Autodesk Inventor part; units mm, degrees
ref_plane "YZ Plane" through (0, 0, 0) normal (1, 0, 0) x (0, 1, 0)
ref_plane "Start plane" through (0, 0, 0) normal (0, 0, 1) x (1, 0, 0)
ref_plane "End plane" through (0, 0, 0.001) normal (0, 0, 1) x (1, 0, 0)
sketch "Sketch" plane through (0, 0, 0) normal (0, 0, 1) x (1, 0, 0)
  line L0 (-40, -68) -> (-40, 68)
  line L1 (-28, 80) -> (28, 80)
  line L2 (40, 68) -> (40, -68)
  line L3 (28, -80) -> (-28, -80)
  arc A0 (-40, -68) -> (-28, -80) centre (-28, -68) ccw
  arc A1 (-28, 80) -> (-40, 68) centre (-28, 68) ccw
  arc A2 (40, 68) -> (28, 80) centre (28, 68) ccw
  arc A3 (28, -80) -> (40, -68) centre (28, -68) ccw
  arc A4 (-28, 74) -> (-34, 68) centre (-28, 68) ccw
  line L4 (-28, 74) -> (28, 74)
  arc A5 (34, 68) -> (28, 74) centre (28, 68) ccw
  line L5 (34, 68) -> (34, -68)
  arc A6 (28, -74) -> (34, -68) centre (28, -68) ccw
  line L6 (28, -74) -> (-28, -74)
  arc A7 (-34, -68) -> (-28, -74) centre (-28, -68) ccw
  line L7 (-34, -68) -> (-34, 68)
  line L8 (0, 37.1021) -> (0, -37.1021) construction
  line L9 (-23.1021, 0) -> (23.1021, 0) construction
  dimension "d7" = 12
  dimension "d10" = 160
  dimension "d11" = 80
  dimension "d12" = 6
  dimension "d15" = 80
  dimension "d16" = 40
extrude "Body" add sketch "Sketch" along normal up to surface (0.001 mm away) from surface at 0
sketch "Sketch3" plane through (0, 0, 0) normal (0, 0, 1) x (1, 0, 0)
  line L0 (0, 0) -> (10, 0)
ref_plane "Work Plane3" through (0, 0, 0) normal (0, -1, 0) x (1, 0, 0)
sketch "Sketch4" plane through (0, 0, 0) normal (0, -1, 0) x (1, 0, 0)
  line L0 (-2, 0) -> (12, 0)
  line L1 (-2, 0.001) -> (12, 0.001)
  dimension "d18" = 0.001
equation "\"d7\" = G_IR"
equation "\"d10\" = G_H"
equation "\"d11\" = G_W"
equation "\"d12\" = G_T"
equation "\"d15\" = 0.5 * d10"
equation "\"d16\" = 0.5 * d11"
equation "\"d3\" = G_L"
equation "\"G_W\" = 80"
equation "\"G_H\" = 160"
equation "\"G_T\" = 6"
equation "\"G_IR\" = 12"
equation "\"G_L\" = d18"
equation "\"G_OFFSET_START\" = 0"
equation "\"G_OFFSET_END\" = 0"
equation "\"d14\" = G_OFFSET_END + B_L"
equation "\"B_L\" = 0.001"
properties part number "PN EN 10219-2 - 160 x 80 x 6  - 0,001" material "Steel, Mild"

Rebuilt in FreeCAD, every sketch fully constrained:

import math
import FreeCAD as App
import Part
import Sketcher
Q = App.Units.Quantity

doc = App.newDocument("Part")
body = doc.addObject("PartDesign::Body", "Body")

# Sketch on XY plane
sketch1 = body.newObject("Sketcher::SketchObject", "Sketch")
sketch1.AttachmentSupport = (doc.getObject("XY_Plane"), [""])
sketch1.MapMode = "FlatFace"
sketch1.addGeometry(Part.LineSegment(App.Vector(-40, 68, 0), App.Vector(-40, -68, 0)), False)
sketch1.addGeometry(Part.ArcOfCircle(Part.Circle(App.Vector(-28, -68, 0), App.Vector(0, 0, 1), 12), math.radians(180), math.radians(270)), False)
sketch1.addGeometry(Part.LineSegment(App.Vector(-28, -80, 0), App.Vector(28, -80, 0)), False)
sketch1.addGeometry(Part.ArcOfCircle(Part.Circle(App.Vector(28, -68, 0), App.Vector(0, 0, 1), 12), math.radians(-90), math.radians(0)), False)
sketch1.addGeometry(Part.LineSegment(App.Vector(40, -68, 0), App.Vector(40, 68, 0)), False)
sketch1.addGeometry(Part.ArcOfCircle(Part.Circle(App.Vector(28, 68, 0), App.Vector(0, 0, 1), 12), math.radians(0), math.radians(90)), False)
sketch1.addGeometry(Part.LineSegment(App.Vector(28, 80, 0), App.Vector(-28, 80, 0)), False)
sketch1.addGeometry(Part.ArcOfCircle(Part.Circle(App.Vector(-28, 68, 0), App.Vector(0, 0, 1), 12), math.radians(90), math.radians(180)), False)
sketch1.addGeometry(Part.ArcOfCircle(Part.Circle(App.Vector(-28, 68, 0), App.Vector(0, 0, 1), 6), math.radians(90), math.radians(180)), False)
sketch1.addGeometry(Part.LineSegment(App.Vector(-28, 74, 0), App.Vector(28, 74, 0)), False)
sketch1.addGeometry(Part.ArcOfCircle(Part.Circle(App.Vector(28, 68, 0), App.Vector(0, 0, 1), 6), math.radians(0), math.radians(90)), False)
sketch1.addGeometry(Part.LineSegment(App.Vector(34, 68, 0), App.Vector(34, -68, 0)), False)
sketch1.addGeometry(Part.ArcOfCircle(Part.Circle(App.Vector(28, -68, 0), App.Vector(0, 0, 1), 6), math.radians(-90), math.radians(0)), False)
sketch1.addGeometry(Part.LineSegment(App.Vector(28, -74, 0), App.Vector(-28, -74, 0)), False)
sketch1.addGeometry(Part.ArcOfCircle(Part.Circle(App.Vector(-28, -68, 0), App.Vector(0, 0, 1), 6), math.radians(180), math.radians(270)), False)
sketch1.addGeometry(Part.LineSegment(App.Vector(-34, -68, 0), App.Vector(-34, 68, 0)), False)
sketch1.addConstraint(Sketcher.Constraint("Tangent", 0, 2, 1, 1))
sketch1.addConstraint(Sketcher.Constraint("Tangent", 1, 2, 2, 1))
sketch1.addConstraint(Sketcher.Constraint("Tangent", 2, 2, 3, 1))
sketch1.addConstraint(Sketcher.Constraint("Tangent", 3, 2, 4, 1))
sketch1.addConstraint(Sketcher.Constraint("Tangent", 4, 2, 5, 1))
sketch1.addConstraint(Sketcher.Constraint("Tangent", 5, 2, 6, 1))
sketch1.addConstraint(Sketcher.Constraint("Tangent", 6, 2, 7, 1))
sketch1.addConstraint(Sketcher.Constraint("Tangent", 7, 2, 0, 1))
sketch1.addConstraint(Sketcher.Constraint("Tangent", 8, 1, 9, 1))
sketch1.addConstraint(Sketcher.Constraint("Tangent", 9, 2, 10, 2))
sketch1.addConstraint(Sketcher.Constraint("Tangent", 10, 1, 11, 1))
sketch1.addConstraint(Sketcher.Constraint("Tangent", 11, 2, 12, 2))
sketch1.addConstraint(Sketcher.Constraint("Tangent", 12, 1, 13, 1))
sketch1.addConstraint(Sketcher.Constraint("Tangent", 13, 2, 14, 2))
sketch1.addConstraint(Sketcher.Constraint("Tangent", 14, 1, 15, 1))
sketch1.addConstraint(Sketcher.Constraint("Tangent", 15, 2, 8, 2))
sketch1.addConstraint(Sketcher.Constraint("Vertical", 0))
sketch1.addConstraint(Sketcher.Constraint("Horizontal", 2))
sketch1.addConstraint(Sketcher.Constraint("Vertical", 4))
sketch1.addConstraint(Sketcher.Constraint("Horizontal", 6))
sketch1.addConstraint(Sketcher.Constraint("Horizontal", 9))
sketch1.addConstraint(Sketcher.Constraint("Vertical", 11))
sketch1.addConstraint(Sketcher.Constraint("Horizontal", 13))
sketch1.addConstraint(Sketcher.Constraint("Vertical", 15))
sketch1.addConstraint(Sketcher.Constraint("Coincident", 8, 3, 7, 3))
sketch1.addConstraint(Sketcher.Constraint("Coincident", 10, 3, 5, 3))
sketch1.addConstraint(Sketcher.Constraint("Coincident", 12, 3, 3, 3))
sketch1.addConstraint(Sketcher.Constraint("Equal", 1, 3))
sketch1.addConstraint(Sketcher.Constraint("Equal", 3, 5))
sketch1.addConstraint(Sketcher.Constraint("Equal", 5, 7))
sketch1.addConstraint(Sketcher.Constraint("Equal", 12, 14))
sketch1.addConstraint(Sketcher.Constraint("Symmetric", 1, 3, 5, 3, -1, 1))
sketch1.addConstraint(Sketcher.Constraint("Radius", 1, Q("12 mm")))
sketch1.addConstraint(Sketcher.Constraint("Radius", 8, Q("6 mm")))
sketch1.addConstraint(Sketcher.Constraint("DistanceX", 0, 2, -1, 1, Q("40 mm")))
sketch1.addConstraint(Sketcher.Constraint("DistanceY", 1, 2, -1, 1, Q("80 mm")))
pad1 = body.newObject("PartDesign::Pad", "Pad")
pad1.Profile = sketch1
pad1.Length = 0.001

doc.recompute()
